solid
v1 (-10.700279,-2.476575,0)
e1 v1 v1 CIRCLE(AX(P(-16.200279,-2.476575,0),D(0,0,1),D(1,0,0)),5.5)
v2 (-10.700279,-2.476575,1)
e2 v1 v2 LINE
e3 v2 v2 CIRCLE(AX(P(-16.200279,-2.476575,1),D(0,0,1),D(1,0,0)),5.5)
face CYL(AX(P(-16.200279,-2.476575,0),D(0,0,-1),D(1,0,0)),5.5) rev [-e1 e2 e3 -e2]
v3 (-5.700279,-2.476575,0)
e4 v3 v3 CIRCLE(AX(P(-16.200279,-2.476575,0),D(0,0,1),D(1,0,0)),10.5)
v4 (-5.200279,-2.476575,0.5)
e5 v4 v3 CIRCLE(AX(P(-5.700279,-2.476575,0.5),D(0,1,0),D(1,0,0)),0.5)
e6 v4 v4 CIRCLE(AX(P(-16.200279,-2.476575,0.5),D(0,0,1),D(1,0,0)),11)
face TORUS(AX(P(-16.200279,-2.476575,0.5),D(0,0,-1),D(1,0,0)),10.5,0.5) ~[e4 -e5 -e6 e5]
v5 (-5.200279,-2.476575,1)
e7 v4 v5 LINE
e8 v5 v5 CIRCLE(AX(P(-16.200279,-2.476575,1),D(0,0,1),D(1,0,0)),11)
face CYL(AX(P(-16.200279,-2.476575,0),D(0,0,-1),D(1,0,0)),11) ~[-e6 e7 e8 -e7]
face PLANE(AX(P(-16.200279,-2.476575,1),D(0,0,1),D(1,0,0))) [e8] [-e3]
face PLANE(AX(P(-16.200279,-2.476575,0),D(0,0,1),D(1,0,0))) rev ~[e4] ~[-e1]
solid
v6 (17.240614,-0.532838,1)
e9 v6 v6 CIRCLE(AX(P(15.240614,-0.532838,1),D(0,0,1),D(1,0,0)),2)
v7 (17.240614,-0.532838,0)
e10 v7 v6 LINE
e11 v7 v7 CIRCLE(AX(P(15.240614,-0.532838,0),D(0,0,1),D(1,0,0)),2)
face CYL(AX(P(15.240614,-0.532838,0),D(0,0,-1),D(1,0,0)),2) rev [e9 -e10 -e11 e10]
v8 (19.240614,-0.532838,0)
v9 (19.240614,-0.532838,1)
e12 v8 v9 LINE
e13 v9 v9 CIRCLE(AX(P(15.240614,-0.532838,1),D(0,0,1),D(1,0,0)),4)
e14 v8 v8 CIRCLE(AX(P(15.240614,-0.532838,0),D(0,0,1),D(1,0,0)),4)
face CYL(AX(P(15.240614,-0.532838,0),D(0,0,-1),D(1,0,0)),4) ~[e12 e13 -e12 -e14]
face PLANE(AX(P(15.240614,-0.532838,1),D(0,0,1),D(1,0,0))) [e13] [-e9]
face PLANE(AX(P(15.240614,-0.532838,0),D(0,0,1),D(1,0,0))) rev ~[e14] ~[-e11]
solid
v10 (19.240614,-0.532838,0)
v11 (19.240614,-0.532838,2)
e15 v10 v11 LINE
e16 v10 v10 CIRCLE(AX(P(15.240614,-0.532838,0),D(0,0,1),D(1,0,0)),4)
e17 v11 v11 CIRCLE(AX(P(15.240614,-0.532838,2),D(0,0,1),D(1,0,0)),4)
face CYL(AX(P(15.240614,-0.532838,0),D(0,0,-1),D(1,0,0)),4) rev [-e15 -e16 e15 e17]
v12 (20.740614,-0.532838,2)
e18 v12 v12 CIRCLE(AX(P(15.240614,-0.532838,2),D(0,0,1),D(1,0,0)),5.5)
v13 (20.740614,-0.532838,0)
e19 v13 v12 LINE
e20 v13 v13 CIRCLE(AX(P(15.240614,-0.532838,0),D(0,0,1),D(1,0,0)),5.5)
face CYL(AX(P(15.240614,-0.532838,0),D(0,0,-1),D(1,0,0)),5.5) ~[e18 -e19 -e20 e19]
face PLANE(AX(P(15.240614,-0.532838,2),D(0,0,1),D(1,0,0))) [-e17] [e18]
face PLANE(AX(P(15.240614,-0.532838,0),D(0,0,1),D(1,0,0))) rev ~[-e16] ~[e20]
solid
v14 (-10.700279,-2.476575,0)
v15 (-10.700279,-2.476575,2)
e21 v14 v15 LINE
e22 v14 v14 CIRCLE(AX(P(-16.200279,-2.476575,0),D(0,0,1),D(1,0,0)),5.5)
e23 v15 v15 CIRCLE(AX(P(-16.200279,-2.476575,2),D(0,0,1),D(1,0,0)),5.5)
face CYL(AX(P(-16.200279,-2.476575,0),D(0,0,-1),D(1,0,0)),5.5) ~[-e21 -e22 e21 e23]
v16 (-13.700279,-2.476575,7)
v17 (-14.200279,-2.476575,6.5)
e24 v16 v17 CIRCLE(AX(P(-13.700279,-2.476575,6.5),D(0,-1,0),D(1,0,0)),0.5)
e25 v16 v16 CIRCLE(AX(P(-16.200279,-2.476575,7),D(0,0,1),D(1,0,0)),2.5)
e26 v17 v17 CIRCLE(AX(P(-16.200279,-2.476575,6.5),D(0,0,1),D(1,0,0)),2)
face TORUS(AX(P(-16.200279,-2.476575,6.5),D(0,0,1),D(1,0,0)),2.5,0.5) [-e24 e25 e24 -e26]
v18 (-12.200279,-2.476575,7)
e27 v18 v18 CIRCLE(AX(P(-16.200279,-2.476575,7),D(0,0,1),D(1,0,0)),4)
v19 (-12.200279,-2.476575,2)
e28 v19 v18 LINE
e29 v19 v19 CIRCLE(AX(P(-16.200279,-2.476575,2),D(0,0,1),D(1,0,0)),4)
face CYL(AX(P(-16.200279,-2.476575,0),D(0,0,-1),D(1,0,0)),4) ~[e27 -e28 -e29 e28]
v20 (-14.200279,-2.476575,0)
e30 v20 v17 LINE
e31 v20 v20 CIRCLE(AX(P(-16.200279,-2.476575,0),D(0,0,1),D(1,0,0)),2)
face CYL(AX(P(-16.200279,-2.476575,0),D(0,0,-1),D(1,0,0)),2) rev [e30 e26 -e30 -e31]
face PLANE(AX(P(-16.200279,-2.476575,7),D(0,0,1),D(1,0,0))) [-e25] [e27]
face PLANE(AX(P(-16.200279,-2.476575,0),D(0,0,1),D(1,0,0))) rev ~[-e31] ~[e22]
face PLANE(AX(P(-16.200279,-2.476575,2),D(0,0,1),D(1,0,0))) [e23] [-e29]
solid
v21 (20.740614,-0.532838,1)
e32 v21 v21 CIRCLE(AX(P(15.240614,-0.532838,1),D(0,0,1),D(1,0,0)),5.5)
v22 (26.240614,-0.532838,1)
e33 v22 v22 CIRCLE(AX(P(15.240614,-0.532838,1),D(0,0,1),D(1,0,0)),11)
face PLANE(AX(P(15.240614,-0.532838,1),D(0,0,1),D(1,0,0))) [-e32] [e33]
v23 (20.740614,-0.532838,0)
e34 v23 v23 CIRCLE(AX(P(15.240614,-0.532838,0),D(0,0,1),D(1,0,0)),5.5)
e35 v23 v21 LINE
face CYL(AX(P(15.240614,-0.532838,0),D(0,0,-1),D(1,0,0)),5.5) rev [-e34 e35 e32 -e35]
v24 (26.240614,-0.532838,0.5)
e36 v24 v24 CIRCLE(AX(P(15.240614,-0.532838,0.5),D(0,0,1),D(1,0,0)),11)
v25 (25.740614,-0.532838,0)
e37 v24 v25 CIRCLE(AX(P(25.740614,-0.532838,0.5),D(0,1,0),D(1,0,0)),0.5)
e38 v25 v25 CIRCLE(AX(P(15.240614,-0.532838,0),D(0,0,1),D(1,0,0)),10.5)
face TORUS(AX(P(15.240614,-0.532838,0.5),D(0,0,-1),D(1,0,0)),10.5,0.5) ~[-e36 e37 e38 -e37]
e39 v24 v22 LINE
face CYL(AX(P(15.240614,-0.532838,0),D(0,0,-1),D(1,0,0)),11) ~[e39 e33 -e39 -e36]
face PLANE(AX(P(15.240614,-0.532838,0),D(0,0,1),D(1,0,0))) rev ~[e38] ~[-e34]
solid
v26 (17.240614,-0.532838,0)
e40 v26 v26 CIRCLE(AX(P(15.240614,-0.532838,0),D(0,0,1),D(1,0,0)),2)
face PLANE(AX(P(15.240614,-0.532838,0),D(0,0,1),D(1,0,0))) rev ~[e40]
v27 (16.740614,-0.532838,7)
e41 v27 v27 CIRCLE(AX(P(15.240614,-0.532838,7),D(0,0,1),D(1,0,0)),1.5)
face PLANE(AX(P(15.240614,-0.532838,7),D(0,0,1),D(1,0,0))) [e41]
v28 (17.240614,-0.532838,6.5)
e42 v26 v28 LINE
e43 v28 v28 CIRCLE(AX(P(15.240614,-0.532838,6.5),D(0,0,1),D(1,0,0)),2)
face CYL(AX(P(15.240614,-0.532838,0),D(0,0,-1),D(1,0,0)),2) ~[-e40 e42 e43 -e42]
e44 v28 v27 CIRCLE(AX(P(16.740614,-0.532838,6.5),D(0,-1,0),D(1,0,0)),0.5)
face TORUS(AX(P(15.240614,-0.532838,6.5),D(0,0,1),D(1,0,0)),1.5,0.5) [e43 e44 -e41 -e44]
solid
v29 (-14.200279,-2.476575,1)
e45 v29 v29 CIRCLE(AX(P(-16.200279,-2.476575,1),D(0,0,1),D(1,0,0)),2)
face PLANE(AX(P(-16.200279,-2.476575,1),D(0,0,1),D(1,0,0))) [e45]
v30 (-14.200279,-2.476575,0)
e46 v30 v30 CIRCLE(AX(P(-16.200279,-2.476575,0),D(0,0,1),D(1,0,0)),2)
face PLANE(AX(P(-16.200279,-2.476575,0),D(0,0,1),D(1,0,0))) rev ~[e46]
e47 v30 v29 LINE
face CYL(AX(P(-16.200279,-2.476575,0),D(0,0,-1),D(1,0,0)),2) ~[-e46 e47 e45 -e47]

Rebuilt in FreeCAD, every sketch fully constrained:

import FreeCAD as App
import Part
import Sketcher
from FreeCAD import Vector


def edges_at(feature, points):
    """Names of the edges that pass closest to the given points."""
    edges = feature.Shape.Edges
    near = lambda p: min(range(len(edges)), key=lambda i: edges[i].distToShape(Part.Vertex(*p))[0])
    return sorted({f"Edge{near(p) + 1}" for p in points})

doc = App.newDocument("Part")
params = doc.addObject("Spreadsheet::Sheet", "Params")
for row, (alias, value) in enumerate([
    ("sketch1_diameter", "22 mm"),
    ("sketch1_diameter2", "11 mm"),
    ("pad1_length", "1 mm"),
    ("fillet_radius", "0.5 mm"),
    ("sketch2_diameter", "22 mm"),
    ("sketch2_diameter2", "11 mm"),
    ("pad2_length", "1 mm"),
    ("fillet2_radius", "0.5 mm"),
    ("sketch3_diameter", "11 mm"),
    ("sketch3_diameter2", "8 mm"),
    ("pad3_length", "2 mm"),
    ("sketch4_diameter", "8 mm"),
    ("sketch4_diameter2", "4 mm"),
    ("pad4_length", "7 mm"),
    ("fillet3_radius", "0.5 mm"),
    ("sketch5_diameter", "4 mm"),
    ("sketch5_diameter2", "8 mm"),
    ("pad5_length", "1 mm"),
], start=1):
    params.set(f"A{row}", alias)
    params.set(f"B{row}", "=" + value)
    params.setAlias(f"B{row}", alias)

body = doc.addObject("PartDesign::Body", "Body")

# Sketch on XY plane
sketch1 = body.newObject("Sketcher::SketchObject", "Sketch")
sketch1.AttachmentSupport = (doc.getObject("XY_Plane"), [""])
sketch1.MapMode = "FlatFace"
sketch1.addGeometry([
    Part.Circle(Vector(15, -1, 0), Vector(0, 0, 1), 11),
    Part.Circle(Vector(15, -1, 0), Vector(0, 0, 1), 6),
], False)
sketch1.addConstraint([
    Sketcher.Constraint("Coincident", 1, 3, 0, 3),
    Sketcher.Constraint("Diameter", 0, 22.0),
    Sketcher.Constraint("Diameter", 1, 11.0),
    Sketcher.Constraint("DistanceY", 0, 3, -1, 1, 0.532838),
    Sketcher.Constraint("DistanceX", -1, 1, 0, 3, 15.240614),
])
sketch1.setExpression("Constraints[1]", "Params.sketch1_diameter")
sketch1.setExpression("Constraints[2]", "Params.sketch1_diameter2")
pad1 = body.newObject("PartDesign::Pad", "Pad")
pad1.Profile = sketch1
pad1.setExpression("Length", "Params.pad1_length")
doc.recompute()

fillet = body.newObject("PartDesign::Fillet", "Fillet")
fillet.Base = (pad1, edges_at(pad1, [(4.241, -0.533, 0)]))
fillet.setExpression("Radius", "Params.fillet_radius")
body2 = doc.addObject("PartDesign::Body", "Body001")

# Sketch on XY plane
sketch2 = body2.newObject("Sketcher::SketchObject", "Sketch001")
sketch2.AttachmentSupport = (doc.getObject("XY_Plane001"), [""])
sketch2.MapMode = "FlatFace"
sketch2.addGeometry([
    Part.Circle(Vector(-16, -2, 0), Vector(0, 0, 1), 11),
    Part.Circle(Vector(-16, -2, 0), Vector(0, 0, 1), 6),
], False)
sketch2.addConstraint([
    Sketcher.Constraint("Coincident", 1, 3, 0, 3),
    Sketcher.Constraint("Diameter", 0, 22.0),
    Sketcher.Constraint("Diameter", 1, 11.0),
    Sketcher.Constraint("DistanceX", 0, 3, -1, 1, 16.200279),
    Sketcher.Constraint("DistanceY", 0, 3, -1, 1, 2.476575),
])
sketch2.setExpression("Constraints[1]", "Params.sketch2_diameter")
sketch2.setExpression("Constraints[2]", "Params.sketch2_diameter2")
pad2 = body2.newObject("PartDesign::Pad", "Pad001")
pad2.Profile = sketch2
pad2.setExpression("Length", "Params.pad2_length")
doc.recompute()

fillet2 = body2.newObject("PartDesign::Fillet", "Fillet001")
fillet2.Base = (pad2, edges_at(pad2, [(-27.2, -2.477, 0)]))
fillet2.setExpression("Radius", "Params.fillet2_radius")
body3 = doc.addObject("PartDesign::Body", "Body002")
body3.AllowCompound = True

# Sketch on XY plane
sketch3 = body3.newObject("Sketcher::SketchObject", "Sketch002")
sketch3.AttachmentSupport = (doc.getObject("XY_Plane002"), [""])
sketch3.MapMode = "FlatFace"
sketch3.addGeometry([
    Part.Circle(Vector(-16.2, -2.5, 0), Vector(0, 0, 1), 5.5),
    Part.Circle(Vector(-16.2, -2.5, 0), Vector(0, 0, 1), 4),
    Part.Circle(Vector(15.2, -0.5, 0), Vector(0, 0, 1), 5.5),
    Part.Circle(Vector(15.2, -0.5, 0), Vector(0, 0, 1), 4),
], False)
sketch3.addConstraint([
    Sketcher.Constraint("Coincident", 1, 3, 0, 3),
    Sketcher.Constraint("Coincident", 3, 3, 2, 3),
    Sketcher.Constraint("Equal", 0, 2),
    Sketcher.Constraint("Equal", 1, 3),
    Sketcher.Constraint("Diameter", 0, 11.0),
    Sketcher.Constraint("Diameter", 1, 8.0),
    Sketcher.Constraint("DistanceX", 0, 3, -1, 1, 16.200279),
    Sketcher.Constraint("DistanceY", 2, 3, -1, 1, 0.532838),
    Sketcher.Constraint("DistanceY", 0, 3, -1, 1, 2.476575),
    Sketcher.Constraint("DistanceX", -1, 1, 2, 3, 15.240614),
])
sketch3.setExpression("Constraints[4]", "Params.sketch3_diameter")
sketch3.setExpression("Constraints[5]", "Params.sketch3_diameter2")
pad3 = body3.newObject("PartDesign::Pad", "Pad002")
pad3.Profile = sketch3
pad3.setExpression("Length", "Params.pad3_length")

# Sketch on XY plane
sketch4 = body3.newObject("Sketcher::SketchObject", "Sketch003")
sketch4.AttachmentSupport = (doc.getObject("XY_Plane002"), [""])
sketch4.MapMode = "FlatFace"
sketch4.addGeometry([
    Part.Circle(Vector(-16.2, -2.5, 0), Vector(0, 0, 1), 4),
    Part.Circle(Vector(-16.2, -2.5, 0), Vector(0, 0, 1), 2),
    Part.Circle(Vector(15.2, -0.5, 0), Vector(0, 0, 1), 2),
], False)
sketch4.addConstraint([
    Sketcher.Constraint("Coincident", 1, 3, 0, 3),
    Sketcher.Constraint("Equal", 1, 2),
    Sketcher.Constraint("Diameter", 0, 8.0),
    Sketcher.Constraint("Diameter", 1, 4.0),
    Sketcher.Constraint("DistanceX", 0, 3, -1, 1, 16.200279),
    Sketcher.Constraint("DistanceY", 2, 3, -1, 1, 0.532838),
    Sketcher.Constraint("DistanceY", 0, 3, -1, 1, 2.476575),
    Sketcher.Constraint("DistanceX", -1, 1, 2, 3, 15.240614),
])
sketch4.setExpression("Constraints[2]", "Params.sketch4_diameter")
sketch4.setExpression("Constraints[3]", "Params.sketch4_diameter2")
pad4 = body3.newObject("PartDesign::Pad", "Pad003")
pad4.Profile = sketch4
pad4.setExpression("Length", "Params.pad4_length")
doc.recompute()

fillet3 = body3.newObject("PartDesign::Fillet", "Fillet002")
fillet3.Base = (pad4, edges_at(pad4, [(13.241, -0.533, 7), (-18.2, -2.477, 7)]))
fillet3.setExpression("Radius", "Params.fillet3_radius")
body4 = doc.addObject("PartDesign::Body", "Body003")
body4.AllowCompound = True

# Sketch on XY plane
sketch5 = body4.newObject("Sketcher::SketchObject", "Sketch004")
sketch5.AttachmentSupport = (doc.getObject("XY_Plane003"), [""])
sketch5.MapMode = "FlatFace"
sketch5.addGeometry([
    Part.Circle(Vector(-16.2, -2.5, 0), Vector(0, 0, 1), 2),
    Part.Circle(Vector(15.2, -0.5, 0), Vector(0, 0, 1), 4),
    Part.Circle(Vector(15.2, -0.5, 0), Vector(0, 0, 1), 2),
], False)
sketch5.addConstraint([
    Sketcher.Constraint("Coincident", 2, 3, 1, 3),
    Sketcher.Constraint("Equal", 0, 2),
    Sketcher.Constraint("Diameter", 0, 4.0),
    Sketcher.Constraint("Diameter", 1, 8.0),
    Sketcher.Constraint("DistanceX", 0, 3, -1, 1, 16.200279),
    Sketcher.Constraint("DistanceY", 1, 3, -1, 1, 0.532838),
    Sketcher.Constraint("DistanceY", 0, 3, -1, 1, 2.476575),
    Sketcher.Constraint("DistanceX", -1, 1, 1, 3, 15.240614),
])
sketch5.setExpression("Constraints[2]", "Params.sketch5_diameter")
sketch5.setExpression("Constraints[3]", "Params.sketch5_diameter2")
pad5 = body4.newObject("PartDesign::Pad", "Pad004")
pad5.Profile = sketch5
pad5.setExpression("Length", "Params.pad5_length")

doc.recompute()
